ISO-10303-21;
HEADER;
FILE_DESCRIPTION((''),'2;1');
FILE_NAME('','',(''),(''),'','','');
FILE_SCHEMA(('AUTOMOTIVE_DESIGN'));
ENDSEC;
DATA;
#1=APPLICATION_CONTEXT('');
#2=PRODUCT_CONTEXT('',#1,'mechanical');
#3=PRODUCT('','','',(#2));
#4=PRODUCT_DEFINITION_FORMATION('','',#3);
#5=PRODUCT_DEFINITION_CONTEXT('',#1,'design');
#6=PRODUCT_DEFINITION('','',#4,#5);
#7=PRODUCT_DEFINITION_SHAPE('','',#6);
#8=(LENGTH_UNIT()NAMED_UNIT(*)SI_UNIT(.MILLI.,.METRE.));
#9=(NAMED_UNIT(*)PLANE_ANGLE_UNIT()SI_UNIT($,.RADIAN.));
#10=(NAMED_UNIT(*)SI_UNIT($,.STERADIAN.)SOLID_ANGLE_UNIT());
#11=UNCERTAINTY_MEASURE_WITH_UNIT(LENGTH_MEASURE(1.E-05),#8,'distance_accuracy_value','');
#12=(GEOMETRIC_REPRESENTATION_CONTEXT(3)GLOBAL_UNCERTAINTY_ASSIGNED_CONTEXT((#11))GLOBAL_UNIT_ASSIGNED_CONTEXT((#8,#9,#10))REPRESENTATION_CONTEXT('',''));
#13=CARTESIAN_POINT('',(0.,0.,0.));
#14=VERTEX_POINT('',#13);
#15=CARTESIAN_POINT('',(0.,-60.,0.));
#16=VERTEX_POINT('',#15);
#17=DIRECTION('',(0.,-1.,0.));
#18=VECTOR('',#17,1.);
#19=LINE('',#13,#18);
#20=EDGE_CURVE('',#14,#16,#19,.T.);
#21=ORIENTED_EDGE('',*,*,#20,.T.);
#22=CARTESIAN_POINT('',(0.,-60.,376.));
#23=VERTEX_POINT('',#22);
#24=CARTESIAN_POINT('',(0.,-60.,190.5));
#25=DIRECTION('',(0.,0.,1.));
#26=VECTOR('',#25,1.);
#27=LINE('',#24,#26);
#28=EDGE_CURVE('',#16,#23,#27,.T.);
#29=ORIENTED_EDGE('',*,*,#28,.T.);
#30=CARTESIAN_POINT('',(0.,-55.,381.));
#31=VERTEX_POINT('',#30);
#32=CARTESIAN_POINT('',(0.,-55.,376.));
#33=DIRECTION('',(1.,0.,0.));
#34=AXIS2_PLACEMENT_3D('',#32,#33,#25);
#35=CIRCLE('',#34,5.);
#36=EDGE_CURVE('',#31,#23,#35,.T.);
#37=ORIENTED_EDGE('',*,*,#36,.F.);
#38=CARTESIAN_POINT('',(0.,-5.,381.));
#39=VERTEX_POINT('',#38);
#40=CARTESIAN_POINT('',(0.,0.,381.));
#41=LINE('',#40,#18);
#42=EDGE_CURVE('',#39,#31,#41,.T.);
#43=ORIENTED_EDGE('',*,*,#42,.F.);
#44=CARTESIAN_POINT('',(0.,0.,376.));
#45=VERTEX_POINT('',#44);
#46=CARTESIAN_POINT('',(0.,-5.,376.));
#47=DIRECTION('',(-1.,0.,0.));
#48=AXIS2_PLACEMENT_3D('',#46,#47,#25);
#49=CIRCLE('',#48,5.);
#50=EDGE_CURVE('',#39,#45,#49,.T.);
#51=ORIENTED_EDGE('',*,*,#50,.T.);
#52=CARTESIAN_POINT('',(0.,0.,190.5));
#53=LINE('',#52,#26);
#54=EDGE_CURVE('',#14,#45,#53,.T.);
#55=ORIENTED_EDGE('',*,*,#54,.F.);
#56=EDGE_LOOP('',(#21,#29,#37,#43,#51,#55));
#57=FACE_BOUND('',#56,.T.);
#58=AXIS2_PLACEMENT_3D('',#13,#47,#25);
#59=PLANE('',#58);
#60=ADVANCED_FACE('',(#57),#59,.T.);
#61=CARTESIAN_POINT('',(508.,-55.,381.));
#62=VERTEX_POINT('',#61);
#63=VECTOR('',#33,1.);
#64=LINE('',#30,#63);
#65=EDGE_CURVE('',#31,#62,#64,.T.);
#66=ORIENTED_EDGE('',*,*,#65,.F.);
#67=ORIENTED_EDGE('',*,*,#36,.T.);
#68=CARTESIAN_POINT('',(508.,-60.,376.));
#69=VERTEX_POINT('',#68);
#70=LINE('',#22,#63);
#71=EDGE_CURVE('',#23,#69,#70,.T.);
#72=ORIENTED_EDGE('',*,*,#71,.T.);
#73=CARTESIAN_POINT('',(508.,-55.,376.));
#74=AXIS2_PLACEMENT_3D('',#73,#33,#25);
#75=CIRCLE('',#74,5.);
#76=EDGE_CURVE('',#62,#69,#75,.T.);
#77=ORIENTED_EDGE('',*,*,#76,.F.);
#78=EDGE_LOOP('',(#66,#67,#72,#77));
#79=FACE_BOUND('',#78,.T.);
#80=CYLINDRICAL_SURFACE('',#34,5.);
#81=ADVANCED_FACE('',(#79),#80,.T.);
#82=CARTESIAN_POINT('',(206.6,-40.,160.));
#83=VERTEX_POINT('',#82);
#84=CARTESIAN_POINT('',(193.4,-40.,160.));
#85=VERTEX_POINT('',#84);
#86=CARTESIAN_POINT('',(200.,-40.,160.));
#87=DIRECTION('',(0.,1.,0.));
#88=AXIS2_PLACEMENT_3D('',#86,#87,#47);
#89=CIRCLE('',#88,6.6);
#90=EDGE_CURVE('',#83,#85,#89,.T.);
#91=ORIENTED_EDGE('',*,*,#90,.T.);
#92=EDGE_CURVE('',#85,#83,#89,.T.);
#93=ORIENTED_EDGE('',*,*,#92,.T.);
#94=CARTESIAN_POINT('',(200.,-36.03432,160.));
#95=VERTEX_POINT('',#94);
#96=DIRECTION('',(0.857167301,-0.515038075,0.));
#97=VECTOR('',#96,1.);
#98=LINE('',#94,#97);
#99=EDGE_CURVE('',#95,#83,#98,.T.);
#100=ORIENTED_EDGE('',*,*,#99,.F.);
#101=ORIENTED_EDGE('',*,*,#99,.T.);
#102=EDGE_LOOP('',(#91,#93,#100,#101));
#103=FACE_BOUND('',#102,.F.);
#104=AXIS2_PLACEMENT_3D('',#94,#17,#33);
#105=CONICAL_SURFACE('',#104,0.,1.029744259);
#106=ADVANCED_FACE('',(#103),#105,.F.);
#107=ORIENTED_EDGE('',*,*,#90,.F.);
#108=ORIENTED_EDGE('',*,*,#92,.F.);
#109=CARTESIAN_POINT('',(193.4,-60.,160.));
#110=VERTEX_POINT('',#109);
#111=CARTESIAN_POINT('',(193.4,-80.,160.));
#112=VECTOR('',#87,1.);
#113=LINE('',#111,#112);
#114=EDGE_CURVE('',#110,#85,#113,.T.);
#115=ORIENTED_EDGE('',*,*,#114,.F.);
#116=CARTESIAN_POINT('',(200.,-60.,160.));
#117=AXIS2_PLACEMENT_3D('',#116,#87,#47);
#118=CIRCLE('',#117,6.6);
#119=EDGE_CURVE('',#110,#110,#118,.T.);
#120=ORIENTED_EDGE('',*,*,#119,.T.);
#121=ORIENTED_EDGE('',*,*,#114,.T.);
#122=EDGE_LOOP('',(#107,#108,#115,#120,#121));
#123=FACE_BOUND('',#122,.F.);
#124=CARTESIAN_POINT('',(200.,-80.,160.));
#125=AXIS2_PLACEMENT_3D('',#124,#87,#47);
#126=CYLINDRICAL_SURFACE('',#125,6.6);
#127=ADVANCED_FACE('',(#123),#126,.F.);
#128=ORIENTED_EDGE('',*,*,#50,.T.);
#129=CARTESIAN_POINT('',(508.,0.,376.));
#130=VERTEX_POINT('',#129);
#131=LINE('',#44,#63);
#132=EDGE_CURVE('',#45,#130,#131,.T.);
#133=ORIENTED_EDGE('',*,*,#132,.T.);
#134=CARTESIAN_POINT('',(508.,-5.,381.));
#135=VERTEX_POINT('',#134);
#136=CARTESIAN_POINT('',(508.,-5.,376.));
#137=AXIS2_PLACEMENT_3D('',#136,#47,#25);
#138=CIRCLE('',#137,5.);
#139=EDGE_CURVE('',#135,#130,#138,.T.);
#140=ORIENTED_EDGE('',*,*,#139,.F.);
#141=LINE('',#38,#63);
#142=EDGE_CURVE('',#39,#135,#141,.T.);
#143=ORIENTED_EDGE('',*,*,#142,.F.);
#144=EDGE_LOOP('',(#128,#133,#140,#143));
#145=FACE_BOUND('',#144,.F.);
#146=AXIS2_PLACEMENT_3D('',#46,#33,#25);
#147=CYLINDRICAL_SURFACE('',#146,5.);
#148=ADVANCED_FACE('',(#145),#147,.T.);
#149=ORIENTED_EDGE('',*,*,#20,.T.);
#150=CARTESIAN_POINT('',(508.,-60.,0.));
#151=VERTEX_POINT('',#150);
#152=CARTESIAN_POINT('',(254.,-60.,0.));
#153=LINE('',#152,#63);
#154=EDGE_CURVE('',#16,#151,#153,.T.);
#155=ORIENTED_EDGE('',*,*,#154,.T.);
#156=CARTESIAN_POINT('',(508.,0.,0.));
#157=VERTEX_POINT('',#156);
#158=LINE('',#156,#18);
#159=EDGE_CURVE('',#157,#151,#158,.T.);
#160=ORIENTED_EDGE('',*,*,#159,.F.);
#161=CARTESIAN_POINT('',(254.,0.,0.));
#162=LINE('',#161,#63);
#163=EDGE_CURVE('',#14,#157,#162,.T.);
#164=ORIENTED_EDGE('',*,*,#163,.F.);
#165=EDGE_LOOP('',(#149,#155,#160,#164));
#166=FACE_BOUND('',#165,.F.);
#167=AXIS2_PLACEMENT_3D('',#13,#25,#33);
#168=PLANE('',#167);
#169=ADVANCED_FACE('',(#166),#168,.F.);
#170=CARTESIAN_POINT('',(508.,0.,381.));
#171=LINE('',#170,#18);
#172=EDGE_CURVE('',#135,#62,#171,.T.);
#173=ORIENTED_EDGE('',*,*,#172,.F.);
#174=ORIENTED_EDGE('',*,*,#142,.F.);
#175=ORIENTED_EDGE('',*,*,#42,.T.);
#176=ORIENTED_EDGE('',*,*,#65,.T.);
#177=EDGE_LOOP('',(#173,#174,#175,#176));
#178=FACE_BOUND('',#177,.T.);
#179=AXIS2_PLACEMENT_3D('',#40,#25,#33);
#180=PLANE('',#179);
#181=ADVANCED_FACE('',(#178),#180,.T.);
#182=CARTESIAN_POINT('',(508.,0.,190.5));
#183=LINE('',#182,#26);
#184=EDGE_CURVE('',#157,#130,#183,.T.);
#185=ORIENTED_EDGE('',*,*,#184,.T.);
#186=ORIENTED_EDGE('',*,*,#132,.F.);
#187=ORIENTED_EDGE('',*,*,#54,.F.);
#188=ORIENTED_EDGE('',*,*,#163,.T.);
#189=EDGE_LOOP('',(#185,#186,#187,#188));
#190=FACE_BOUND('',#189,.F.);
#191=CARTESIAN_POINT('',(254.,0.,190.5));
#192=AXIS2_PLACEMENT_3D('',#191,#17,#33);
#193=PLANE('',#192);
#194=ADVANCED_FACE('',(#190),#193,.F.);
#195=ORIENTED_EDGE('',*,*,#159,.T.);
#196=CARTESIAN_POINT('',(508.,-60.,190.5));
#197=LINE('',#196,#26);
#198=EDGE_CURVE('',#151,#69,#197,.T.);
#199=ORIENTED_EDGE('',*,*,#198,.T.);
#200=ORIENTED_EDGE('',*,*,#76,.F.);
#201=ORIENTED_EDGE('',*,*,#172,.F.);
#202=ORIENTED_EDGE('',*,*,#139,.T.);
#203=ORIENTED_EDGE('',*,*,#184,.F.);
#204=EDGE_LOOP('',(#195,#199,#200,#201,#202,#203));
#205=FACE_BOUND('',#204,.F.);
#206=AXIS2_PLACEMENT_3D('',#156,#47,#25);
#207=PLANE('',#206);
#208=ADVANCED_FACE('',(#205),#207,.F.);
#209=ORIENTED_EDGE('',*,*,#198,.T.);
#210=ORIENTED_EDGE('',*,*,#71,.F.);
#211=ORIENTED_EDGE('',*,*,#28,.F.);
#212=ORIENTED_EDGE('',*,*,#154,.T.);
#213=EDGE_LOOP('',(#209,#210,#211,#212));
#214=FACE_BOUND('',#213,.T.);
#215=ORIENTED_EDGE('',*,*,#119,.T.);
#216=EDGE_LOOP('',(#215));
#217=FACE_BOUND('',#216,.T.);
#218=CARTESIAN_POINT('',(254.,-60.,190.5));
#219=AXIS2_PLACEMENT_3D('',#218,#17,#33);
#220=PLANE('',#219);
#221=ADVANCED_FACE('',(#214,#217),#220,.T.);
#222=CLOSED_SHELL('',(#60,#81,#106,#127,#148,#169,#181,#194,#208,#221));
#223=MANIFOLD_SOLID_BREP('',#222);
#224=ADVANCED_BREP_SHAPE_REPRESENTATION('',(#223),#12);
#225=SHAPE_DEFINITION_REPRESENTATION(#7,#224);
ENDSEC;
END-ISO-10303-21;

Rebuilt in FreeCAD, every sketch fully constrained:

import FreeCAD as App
import Part
import Sketcher
from FreeCAD import Vector
Q = App.Units.Quantity


def edges_at(feature, points):
    """Names of the edges that pass closest to the given points."""
    edges = feature.Shape.Edges
    near = lambda p: min(range(len(edges)), key=lambda i: edges[i].distToShape(Part.Vertex(*p))[0])
    return sorted({f"Edge{near(p) + 1}" for p in points})


def add_polygon(sketch, points):
    """Adds a closed chain of lines whose ends are joined by coincident constraints."""
    first, n = sketch.GeometryCount, len(points)
    for a, b in zip(points, points[1:] + points[:1]):
        sketch.addGeometry(Part.LineSegment(App.Vector(*a, 0), App.Vector(*b, 0)), False)
    for i in range(n):
        sketch.addConstraint(Sketcher.Constraint("Coincident", first + i, 2, first + (i + 1) % n, 1))

doc = App.newDocument("Part")
body = doc.addObject("PartDesign::Body", "Body")

sketch1 = body.newObject("Sketcher::SketchObject", "Sketch")
sketch1.AttachmentSupport = (doc.getObject("XZ_Plane"), [""])
sketch1.MapMode = "FlatFace"
add_polygon(sketch1, [(0, 381), (0, 0), (508, 0), (508, 381)])
sketch1.addConstraint(Sketcher.Constraint("Vertical", 0))
sketch1.addConstraint(Sketcher.Constraint("Horizontal", 1))
sketch1.addConstraint(Sketcher.Constraint("Vertical", 2))
sketch1.addConstraint(Sketcher.Constraint("Horizontal", 3))
sketch1.addConstraint(Sketcher.Constraint("Coincident", 0, 2, -1, 1))
sketch1.addConstraint(Sketcher.Constraint("DistanceX", 1, 1, 1, 2, Q("508 mm")))
sketch1.addConstraint(Sketcher.Constraint("DistanceY", 0, 2, 0, 1, Q("381 mm")))
pad1 = body.newObject("PartDesign::Pad", "Pad")
pad1.Profile = sketch1
pad1.Length = 60

sketch2 = body.newObject("Sketcher::SketchObject", "Sketch001")
sketch2.AttachmentSupport = (doc.getObject("XZ_Plane"), [""])
sketch2.MapMode = "FlatFace"
sketch2.AttachmentOffset = App.Placement(Vector(0, 0, 60), App.Rotation())
sketch2.addGeometry(Part.Circle(Vector(200, 160, 0), Vector(0, 0, 1), 7), False)
sketch2.addConstraint(Sketcher.Constraint("Diameter", 0, Q("13.2 mm")))
sketch2.addConstraint(Sketcher.Constraint("DistanceX", -1, 1, 0, 3, Q("200 mm")))
sketch2.addConstraint(Sketcher.Constraint("DistanceY", -1, 1, 0, 3, Q("160 mm")))
doc.recompute()
hole = body.newObject("PartDesign::Hole", "Hole")
hole.Profile = sketch2
hole.ThreadType = "None"
hole.Diameter = 13.2
hole.DepthType = "Dimension"
hole.Depth = 20
hole.DrillPoint = "Angled"
hole.DrillPointAngle = 118
doc.recompute()

fillet = body.newObject("PartDesign::Fillet", "Fillet")
fillet.Base = (hole, edges_at(hole, [(254, -60, 381), (254, 0, 381)]))
fillet.Radius = 5

doc.recompute()
